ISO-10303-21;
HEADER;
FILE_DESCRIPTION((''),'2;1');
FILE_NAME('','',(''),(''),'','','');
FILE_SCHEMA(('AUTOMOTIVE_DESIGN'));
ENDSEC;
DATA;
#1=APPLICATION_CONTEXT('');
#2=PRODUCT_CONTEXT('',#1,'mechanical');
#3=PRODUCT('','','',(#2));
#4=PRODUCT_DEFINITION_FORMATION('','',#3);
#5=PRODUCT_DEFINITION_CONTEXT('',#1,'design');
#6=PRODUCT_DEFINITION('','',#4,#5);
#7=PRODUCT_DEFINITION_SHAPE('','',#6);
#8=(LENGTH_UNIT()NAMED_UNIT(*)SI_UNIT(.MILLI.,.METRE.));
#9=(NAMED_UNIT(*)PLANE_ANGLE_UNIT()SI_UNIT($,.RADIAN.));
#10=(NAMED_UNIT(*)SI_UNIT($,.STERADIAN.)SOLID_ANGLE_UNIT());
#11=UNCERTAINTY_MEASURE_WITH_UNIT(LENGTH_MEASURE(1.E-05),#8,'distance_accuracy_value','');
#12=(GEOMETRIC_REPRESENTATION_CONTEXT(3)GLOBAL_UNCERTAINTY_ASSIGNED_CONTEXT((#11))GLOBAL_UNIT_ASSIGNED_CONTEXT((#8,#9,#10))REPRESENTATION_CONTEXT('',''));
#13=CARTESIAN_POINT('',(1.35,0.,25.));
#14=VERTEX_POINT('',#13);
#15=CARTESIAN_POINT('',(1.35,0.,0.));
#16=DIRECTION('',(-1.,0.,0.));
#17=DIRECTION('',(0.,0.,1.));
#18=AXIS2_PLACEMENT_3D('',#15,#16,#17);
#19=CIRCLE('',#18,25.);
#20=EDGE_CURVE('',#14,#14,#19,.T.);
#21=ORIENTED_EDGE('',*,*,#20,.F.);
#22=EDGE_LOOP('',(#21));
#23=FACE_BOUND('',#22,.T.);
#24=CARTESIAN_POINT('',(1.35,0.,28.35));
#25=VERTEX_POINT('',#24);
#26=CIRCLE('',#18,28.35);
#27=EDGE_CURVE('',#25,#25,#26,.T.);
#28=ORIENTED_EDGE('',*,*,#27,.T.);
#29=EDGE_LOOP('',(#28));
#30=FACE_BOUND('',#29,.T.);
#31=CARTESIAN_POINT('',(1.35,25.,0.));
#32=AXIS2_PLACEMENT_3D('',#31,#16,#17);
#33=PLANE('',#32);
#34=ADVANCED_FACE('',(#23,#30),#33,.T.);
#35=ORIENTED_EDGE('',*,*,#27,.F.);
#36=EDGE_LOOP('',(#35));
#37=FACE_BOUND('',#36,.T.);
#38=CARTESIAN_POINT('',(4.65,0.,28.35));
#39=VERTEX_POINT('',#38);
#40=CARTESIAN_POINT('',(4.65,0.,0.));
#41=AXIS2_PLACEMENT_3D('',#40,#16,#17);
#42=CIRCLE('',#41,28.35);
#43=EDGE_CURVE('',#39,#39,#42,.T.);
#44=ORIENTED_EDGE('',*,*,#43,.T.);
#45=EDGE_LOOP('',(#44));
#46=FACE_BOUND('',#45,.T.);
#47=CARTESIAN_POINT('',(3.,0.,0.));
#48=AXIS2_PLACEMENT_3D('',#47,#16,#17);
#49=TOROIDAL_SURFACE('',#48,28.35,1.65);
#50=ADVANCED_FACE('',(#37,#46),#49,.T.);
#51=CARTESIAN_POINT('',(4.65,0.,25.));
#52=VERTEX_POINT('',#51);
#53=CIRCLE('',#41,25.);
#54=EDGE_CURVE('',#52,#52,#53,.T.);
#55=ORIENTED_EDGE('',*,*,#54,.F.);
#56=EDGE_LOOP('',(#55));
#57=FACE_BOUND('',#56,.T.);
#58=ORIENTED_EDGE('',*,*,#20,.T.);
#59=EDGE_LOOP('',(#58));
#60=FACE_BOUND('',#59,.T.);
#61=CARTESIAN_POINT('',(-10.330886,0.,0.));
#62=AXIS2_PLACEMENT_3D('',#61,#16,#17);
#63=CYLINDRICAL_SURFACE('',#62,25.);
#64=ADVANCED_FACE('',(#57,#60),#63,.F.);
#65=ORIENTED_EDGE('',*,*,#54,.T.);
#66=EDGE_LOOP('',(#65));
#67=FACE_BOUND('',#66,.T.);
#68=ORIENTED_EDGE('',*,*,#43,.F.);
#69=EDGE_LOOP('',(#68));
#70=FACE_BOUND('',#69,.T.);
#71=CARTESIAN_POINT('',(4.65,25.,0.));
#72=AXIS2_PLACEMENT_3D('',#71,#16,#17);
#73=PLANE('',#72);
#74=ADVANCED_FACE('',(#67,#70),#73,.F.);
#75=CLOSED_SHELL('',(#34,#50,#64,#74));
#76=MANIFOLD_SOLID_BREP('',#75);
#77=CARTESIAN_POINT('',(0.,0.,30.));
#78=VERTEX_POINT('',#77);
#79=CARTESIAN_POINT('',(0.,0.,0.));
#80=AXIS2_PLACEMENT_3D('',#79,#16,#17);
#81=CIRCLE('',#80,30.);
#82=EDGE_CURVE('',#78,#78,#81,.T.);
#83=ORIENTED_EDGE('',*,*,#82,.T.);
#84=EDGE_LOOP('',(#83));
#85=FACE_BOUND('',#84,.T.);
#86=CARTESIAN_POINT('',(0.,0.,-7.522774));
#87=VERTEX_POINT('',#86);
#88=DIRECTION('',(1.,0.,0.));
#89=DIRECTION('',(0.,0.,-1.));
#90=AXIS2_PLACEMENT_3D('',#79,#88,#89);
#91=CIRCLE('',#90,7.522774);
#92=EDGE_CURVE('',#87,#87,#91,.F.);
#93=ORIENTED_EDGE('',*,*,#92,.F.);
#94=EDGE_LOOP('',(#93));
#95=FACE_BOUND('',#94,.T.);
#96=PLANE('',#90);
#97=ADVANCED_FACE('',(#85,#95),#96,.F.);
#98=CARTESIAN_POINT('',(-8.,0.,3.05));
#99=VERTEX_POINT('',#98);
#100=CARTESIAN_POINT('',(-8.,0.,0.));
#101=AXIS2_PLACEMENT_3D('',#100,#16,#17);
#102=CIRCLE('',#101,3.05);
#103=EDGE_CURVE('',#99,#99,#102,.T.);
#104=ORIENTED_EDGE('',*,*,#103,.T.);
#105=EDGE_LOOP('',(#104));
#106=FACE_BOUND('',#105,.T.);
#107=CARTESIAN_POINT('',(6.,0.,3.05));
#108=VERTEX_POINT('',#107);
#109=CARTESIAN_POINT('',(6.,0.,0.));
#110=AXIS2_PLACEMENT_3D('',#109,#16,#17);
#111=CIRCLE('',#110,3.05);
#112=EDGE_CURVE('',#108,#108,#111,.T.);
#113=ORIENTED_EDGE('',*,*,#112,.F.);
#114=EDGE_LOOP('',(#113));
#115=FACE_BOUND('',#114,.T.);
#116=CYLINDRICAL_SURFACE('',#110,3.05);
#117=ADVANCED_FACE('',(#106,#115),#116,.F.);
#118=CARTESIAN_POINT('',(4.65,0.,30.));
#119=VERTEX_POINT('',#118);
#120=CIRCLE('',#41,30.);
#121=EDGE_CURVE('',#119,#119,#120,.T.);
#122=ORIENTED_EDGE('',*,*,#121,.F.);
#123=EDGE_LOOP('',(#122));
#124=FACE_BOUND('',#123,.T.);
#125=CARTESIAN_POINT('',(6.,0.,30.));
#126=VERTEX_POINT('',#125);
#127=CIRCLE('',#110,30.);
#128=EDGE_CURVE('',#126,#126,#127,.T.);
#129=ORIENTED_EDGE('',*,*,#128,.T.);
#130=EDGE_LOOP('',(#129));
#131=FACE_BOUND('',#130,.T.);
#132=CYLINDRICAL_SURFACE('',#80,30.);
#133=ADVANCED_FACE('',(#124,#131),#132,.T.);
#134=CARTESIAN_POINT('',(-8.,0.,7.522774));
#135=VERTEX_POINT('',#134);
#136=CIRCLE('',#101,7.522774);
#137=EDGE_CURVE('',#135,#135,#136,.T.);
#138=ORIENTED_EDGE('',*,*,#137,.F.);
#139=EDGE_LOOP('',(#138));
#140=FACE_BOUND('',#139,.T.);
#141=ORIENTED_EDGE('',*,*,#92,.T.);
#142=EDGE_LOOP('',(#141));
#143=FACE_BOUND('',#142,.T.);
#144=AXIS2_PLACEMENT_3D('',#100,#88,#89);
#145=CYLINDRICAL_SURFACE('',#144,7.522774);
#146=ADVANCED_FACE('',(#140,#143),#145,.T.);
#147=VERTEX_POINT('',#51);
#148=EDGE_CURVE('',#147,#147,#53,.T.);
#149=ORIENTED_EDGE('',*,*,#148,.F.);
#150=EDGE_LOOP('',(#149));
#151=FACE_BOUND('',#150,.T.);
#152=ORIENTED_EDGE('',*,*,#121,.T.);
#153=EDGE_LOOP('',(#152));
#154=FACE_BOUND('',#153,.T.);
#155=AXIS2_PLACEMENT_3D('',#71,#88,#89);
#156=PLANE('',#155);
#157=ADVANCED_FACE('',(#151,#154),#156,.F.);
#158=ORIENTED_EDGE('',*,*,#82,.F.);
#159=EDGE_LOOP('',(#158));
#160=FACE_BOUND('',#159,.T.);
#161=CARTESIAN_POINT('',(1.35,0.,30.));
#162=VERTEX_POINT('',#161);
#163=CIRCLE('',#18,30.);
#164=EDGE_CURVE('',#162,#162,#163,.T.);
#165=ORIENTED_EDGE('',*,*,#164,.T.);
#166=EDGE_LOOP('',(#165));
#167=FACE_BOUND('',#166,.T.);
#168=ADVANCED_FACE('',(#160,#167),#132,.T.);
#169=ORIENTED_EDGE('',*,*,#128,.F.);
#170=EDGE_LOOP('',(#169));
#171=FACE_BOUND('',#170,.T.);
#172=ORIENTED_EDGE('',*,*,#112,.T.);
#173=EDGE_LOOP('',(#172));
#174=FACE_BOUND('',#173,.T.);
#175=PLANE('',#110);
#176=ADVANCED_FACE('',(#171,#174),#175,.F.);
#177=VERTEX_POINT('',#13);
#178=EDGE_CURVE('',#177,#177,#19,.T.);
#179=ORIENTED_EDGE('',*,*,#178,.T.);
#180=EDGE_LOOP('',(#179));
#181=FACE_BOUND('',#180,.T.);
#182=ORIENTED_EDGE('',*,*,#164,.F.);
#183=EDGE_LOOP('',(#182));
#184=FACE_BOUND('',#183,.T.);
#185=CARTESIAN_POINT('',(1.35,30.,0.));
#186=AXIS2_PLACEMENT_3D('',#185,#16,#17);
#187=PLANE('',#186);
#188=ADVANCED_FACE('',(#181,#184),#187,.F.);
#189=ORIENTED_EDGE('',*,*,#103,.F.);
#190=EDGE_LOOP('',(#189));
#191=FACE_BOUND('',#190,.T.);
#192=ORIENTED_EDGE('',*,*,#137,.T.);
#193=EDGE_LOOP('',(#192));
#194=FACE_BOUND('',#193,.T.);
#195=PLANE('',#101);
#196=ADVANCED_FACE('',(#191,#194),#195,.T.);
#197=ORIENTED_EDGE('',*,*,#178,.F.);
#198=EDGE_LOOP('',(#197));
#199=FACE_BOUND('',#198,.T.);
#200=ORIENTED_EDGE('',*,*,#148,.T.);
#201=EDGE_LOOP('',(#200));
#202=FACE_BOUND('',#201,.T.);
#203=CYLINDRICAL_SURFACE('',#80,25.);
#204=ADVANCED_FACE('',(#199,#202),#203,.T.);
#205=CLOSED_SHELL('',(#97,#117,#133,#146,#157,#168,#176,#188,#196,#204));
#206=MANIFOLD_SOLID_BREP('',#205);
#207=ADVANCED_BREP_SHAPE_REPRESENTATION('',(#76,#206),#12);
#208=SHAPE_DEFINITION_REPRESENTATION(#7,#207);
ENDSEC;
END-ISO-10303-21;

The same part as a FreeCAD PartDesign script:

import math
import FreeCAD as App
import Part
import Sketcher

V = App.Vector
Q = App.Units.Quantity


def add_polygon(sketch, points):
    """Adds a closed chain of lines whose ends are joined by coincident constraints."""
    first, n = sketch.GeometryCount, len(points)
    for a, b in zip(points, points[1:] + points[:1]):
        sketch.addGeometry(Part.LineSegment(App.Vector(*a, 0), App.Vector(*b, 0)), False)
    for i in range(n):
        sketch.addConstraint(Sketcher.Constraint("Coincident", first + i, 2, first + (i + 1) % n, 1))

doc = App.newDocument("Part")
body = doc.addObject("PartDesign::Body", "Body")

sketch1 = doc.addObject("Sketcher::SketchObject", "Sketch")
body.addObject(sketch1)
sketch1.AttachmentSupport = (doc.XY_Plane, [""])
sketch1.MapMode = "FlatFace"
add_polygon(sketch1, [(1.4, 25), (1.4, 30), (0, 30), (0, 0), (6, 0), (6, 30), (4.7, 30), (4.7, 25)])
sketch1.addConstraint(Sketcher.Constraint("Vertical", 0))
sketch1.addConstraint(Sketcher.Constraint("Horizontal", 1))
sketch1.addConstraint(Sketcher.Constraint("Vertical", 2))
sketch1.addConstraint(Sketcher.Constraint("Horizontal", 3))
sketch1.addConstraint(Sketcher.Constraint("Vertical", 4))
sketch1.addConstraint(Sketcher.Constraint("Horizontal", 5))
sketch1.addConstraint(Sketcher.Constraint("Vertical", 6))
sketch1.addConstraint(Sketcher.Constraint("Horizontal", 7))
sketch1.addConstraint(Sketcher.Constraint("Coincident", 2, 2, -1, 1))
sketch1.addConstraint(Sketcher.Constraint("Horizontal", 1, 2, 4, 2))
sketch1.addConstraint(Sketcher.Constraint("Equal", 1, 5))
sketch1.addConstraint(Sketcher.Constraint("DistanceX", 3, 1, 3, 2, Q("6 mm")))
sketch1.addConstraint(Sketcher.Constraint("DistanceY", 0, 1, 0, 2, Q("5 mm")))
sketch1.addConstraint(Sketcher.Constraint("DistanceY", 2, 2, 2, 1, Q("30 mm")))
sketch1.addConstraint(Sketcher.Constraint("DistanceX", 7, 2, 7, 1, Q("3.3 mm")))
revolution = doc.addObject("PartDesign::Revolution", "Revolution")
body.addObject(revolution)
revolution.Profile = sketch1
revolution.ReferenceAxis = (sketch1, ["H_Axis"])
revolution.Angle = 360

sketch2 = doc.addObject("Sketcher::SketchObject", "Sketch001")
body.addObject(sketch2)
sketch2.AttachmentSupport = (doc.YZ_Plane, [""])
sketch2.MapMode = "FlatFace"
sketch2.addGeometry(Part.Circle(V(0, 0, 0), V(0, 0, 1), 8), False)
sketch2.addConstraint(Sketcher.Constraint("Coincident", 0, 3, -1, 1))
sketch2.addConstraint(Sketcher.Constraint("Diameter", 0, Q("15.045548 mm")))
pad1 = doc.addObject("PartDesign::Pad", "Pad")
body.addObject(pad1)
pad1.Profile = sketch2
pad1.Length = 8
pad1.Reversed = True

sketch3 = doc.addObject("Sketcher::SketchObject", "Sketch002")
body.addObject(sketch3)
sketch3.AttachmentSupport = (doc.YZ_Plane, [""])
sketch3.MapMode = "FlatFace"
sketch3.AttachmentOffset = App.Placement(V(0, 0, -8), App.Rotation())
sketch3.addGeometry(Part.Circle(V(0, 0, 0), V(0, 0, 1), 3), False)
sketch3.addConstraint(Sketcher.Constraint("Coincident", 0, 3, -1, 1))
sketch3.addConstraint(Sketcher.Constraint("Diameter", 0, Q("6.1 mm")))
pocket1 = doc.addObject("PartDesign::Pocket", "Pocket")
body.addObject(pocket1)
pocket1.Profile = sketch3
pocket1.Type = "ThroughAll"
pocket1.Reversed = True
body2 = doc.addObject("PartDesign::Body", "Body001")

sketch4 = doc.addObject("Sketcher::SketchObject", "Sketch003")
body2.addObject(sketch4)
sketch4.AttachmentSupport = (doc.getObject("XY_Plane001"), [""])
sketch4.MapMode = "FlatFace"
sketch4.addGeometry(Part.LineSegment(V(1.4, 25, 0), V(4.7, 25, 0)), False)
sketch4.addGeometry(Part.LineSegment(V(4.7, 25, 0), V(4.7, 28.4, 0)), False)
sketch4.addGeometry(Part.ArcOfCircle(Part.Circle(V(3, 28.4, 0), V(0, 0, 1), 1.6), math.radians(0), math.radians(180)), False)
sketch4.addGeometry(Part.LineSegment(V(1.4, 28.4, 0), V(1.4, 25, 0)), False)
sketch4.addConstraint(Sketcher.Constraint("Coincident", 0, 2, 1, 1))
sketch4.addConstraint(Sketcher.Constraint("Tangent", 1, 2, 2, 1))
sketch4.addConstraint(Sketcher.Constraint("Tangent", 2, 2, 3, 1))
sketch4.addConstraint(Sketcher.Constraint("Coincident", 3, 2, 0, 1))
sketch4.addConstraint(Sketcher.Constraint("Horizontal", 0))
sketch4.addConstraint(Sketcher.Constraint("Vertical", 1))
sketch4.addConstraint(Sketcher.Constraint("Vertical", 3))
sketch4.addConstraint(Sketcher.Constraint("Radius", 2, Q("1.65 mm")))
sketch4.addConstraint(Sketcher.Constraint("DistanceX", -1, 1, 2, 3, Q("3 mm")))
sketch4.addConstraint(Sketcher.Constraint("DistanceY", -1, 1, 0, 2, Q("25 mm")))
sketch4.addConstraint(Sketcher.Constraint("DistanceY", 1, 1, 1, 2, Q("3.35 mm")))
revolution2 = doc.addObject("PartDesign::Revolution", "Revolution001")
body2.addObject(revolution2)
revolution2.Profile = sketch4
revolution2.ReferenceAxis = (sketch4, ["H_Axis"])
revolution2.Angle = 360

doc.recompute()
